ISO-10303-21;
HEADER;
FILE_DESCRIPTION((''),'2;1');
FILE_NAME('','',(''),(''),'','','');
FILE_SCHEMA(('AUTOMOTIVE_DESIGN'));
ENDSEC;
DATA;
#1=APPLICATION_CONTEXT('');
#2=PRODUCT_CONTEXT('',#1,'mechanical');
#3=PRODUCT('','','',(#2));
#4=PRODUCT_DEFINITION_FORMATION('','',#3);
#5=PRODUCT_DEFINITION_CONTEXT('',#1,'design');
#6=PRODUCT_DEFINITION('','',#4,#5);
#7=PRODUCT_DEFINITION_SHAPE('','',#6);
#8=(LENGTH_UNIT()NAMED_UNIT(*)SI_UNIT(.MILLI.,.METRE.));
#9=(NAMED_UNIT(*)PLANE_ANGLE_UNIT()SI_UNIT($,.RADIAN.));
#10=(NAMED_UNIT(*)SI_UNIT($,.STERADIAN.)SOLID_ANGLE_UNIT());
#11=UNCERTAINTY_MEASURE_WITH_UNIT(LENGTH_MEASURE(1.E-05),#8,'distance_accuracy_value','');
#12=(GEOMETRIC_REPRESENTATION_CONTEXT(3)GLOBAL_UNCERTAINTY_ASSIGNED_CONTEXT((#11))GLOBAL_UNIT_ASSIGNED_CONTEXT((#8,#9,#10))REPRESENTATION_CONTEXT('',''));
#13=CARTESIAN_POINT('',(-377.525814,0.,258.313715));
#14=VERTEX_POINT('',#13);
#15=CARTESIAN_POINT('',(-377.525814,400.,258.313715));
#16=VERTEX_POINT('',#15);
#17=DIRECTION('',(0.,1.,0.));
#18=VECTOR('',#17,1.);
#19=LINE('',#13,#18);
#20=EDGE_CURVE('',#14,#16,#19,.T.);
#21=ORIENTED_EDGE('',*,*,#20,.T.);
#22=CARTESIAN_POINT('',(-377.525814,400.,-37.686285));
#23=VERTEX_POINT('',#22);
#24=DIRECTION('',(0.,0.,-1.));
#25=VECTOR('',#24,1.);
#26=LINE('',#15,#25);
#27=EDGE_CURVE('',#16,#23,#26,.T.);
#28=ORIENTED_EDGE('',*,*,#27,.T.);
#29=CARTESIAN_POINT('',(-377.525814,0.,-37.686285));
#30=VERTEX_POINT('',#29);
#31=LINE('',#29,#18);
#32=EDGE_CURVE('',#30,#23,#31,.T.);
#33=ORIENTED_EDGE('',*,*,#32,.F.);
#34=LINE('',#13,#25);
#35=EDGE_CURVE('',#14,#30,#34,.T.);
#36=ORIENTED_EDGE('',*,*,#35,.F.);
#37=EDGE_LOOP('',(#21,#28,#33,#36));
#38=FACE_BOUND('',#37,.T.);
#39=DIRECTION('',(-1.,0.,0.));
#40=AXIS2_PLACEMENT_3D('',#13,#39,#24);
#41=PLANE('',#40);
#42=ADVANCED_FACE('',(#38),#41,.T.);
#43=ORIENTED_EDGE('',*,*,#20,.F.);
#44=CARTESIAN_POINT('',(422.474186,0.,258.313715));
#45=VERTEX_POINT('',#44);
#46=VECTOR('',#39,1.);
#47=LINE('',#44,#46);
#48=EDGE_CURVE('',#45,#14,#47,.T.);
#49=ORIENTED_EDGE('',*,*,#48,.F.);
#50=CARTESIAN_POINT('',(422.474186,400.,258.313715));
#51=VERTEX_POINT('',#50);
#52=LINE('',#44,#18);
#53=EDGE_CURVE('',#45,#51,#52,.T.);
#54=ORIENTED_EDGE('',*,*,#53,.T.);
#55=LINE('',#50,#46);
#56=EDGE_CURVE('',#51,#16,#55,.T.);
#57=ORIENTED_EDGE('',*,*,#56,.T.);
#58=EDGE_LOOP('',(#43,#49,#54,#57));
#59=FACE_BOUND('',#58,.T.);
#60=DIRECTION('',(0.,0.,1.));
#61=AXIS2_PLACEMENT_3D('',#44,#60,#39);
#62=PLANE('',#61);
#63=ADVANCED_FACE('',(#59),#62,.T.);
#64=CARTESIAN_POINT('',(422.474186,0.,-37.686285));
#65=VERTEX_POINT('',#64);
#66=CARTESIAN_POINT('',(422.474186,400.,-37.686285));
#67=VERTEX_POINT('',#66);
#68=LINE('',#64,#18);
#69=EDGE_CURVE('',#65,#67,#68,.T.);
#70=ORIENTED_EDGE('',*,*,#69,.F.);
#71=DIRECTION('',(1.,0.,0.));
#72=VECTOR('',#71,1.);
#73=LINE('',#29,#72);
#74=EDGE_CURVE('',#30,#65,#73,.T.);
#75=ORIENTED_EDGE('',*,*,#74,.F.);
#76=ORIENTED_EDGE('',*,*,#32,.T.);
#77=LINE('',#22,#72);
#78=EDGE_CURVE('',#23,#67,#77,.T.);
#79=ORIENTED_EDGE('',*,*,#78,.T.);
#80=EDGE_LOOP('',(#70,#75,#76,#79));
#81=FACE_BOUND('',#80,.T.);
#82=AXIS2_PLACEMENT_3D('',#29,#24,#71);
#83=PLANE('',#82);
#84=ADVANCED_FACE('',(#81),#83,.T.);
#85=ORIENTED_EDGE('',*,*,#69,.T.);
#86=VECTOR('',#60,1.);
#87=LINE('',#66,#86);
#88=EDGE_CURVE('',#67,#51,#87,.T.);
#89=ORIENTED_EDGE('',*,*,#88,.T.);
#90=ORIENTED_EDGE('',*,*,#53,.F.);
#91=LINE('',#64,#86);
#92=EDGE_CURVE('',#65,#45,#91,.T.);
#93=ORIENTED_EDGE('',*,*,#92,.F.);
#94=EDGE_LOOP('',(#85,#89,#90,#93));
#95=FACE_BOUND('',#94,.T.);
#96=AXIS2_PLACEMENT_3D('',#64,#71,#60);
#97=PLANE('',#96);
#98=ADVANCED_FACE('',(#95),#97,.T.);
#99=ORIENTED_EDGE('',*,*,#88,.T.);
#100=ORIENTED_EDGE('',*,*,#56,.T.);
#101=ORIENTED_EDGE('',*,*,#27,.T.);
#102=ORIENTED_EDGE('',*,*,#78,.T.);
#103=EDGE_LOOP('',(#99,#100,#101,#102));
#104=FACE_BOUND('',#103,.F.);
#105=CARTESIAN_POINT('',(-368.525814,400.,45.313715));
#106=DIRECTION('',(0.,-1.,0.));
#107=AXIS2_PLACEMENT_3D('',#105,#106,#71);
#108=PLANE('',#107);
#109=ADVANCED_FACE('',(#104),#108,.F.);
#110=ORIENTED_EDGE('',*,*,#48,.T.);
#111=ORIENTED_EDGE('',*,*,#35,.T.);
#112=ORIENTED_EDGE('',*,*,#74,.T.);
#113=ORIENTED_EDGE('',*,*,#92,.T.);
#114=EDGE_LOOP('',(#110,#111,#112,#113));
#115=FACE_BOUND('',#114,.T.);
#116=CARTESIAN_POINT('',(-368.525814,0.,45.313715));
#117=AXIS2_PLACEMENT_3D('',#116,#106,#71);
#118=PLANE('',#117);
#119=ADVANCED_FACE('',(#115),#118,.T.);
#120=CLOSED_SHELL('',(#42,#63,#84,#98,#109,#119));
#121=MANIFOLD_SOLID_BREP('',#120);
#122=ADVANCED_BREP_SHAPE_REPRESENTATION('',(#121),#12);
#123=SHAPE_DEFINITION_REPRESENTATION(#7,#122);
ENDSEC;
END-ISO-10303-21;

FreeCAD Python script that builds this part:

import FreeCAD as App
import Part
import Sketcher

V = App.Vector


def add_polygon(sketch, points):
    """Adds a closed chain of lines whose ends are joined by coincident constraints."""
    first, n = sketch.GeometryCount, len(points)
    for a, b in zip(points, points[1:] + points[:1]):
        sketch.addGeometry(Part.LineSegment(App.Vector(*a, 0), App.Vector(*b, 0)), False)
    for i in range(n):
        sketch.addConstraint(Sketcher.Constraint("Coincident", first + i, 2, first + (i + 1) % n, 1))

doc = App.newDocument("Part")
body = doc.addObject("PartDesign::Body", "Body")

sketch1 = body.newObject("Sketcher::SketchObject", "Sketch")
sketch1.AttachmentSupport = (doc.getObject("XZ_Plane"), [""])
sketch1.MapMode = "FlatFace"
add_polygon(sketch1, [(-377.525814, -37.686285), (422.474186, -37.686285), (422.474186, 258.313715), (-377.525814, 258.313715)])
sketch1.addConstraint(Sketcher.Constraint("Horizontal", 0))
sketch1.addConstraint(Sketcher.Constraint("Vertical", 1))
sketch1.addConstraint(Sketcher.Constraint("Horizontal", 2))
sketch1.addConstraint(Sketcher.Constraint("Vertical", 3))
sketch1.addConstraint(Sketcher.Constraint("DistanceX", 0, 1, 0, 2, 800.0))
sketch1.addConstraint(Sketcher.Constraint("DistanceY", 1, 1, 1, 2, 296.0))
sketch1.addConstraint(Sketcher.Constraint("DistanceX", -1, 1, 0, 2, 422.474186))
sketch1.addConstraint(Sketcher.Constraint("DistanceY", 0, 2, -1, 1, 37.686285))
pad1 = body.newObject("PartDesign::Pad", "Pad")
pad1.Profile = sketch1
pad1.Length = 400
pad1.Reversed = True

doc.recompute()
